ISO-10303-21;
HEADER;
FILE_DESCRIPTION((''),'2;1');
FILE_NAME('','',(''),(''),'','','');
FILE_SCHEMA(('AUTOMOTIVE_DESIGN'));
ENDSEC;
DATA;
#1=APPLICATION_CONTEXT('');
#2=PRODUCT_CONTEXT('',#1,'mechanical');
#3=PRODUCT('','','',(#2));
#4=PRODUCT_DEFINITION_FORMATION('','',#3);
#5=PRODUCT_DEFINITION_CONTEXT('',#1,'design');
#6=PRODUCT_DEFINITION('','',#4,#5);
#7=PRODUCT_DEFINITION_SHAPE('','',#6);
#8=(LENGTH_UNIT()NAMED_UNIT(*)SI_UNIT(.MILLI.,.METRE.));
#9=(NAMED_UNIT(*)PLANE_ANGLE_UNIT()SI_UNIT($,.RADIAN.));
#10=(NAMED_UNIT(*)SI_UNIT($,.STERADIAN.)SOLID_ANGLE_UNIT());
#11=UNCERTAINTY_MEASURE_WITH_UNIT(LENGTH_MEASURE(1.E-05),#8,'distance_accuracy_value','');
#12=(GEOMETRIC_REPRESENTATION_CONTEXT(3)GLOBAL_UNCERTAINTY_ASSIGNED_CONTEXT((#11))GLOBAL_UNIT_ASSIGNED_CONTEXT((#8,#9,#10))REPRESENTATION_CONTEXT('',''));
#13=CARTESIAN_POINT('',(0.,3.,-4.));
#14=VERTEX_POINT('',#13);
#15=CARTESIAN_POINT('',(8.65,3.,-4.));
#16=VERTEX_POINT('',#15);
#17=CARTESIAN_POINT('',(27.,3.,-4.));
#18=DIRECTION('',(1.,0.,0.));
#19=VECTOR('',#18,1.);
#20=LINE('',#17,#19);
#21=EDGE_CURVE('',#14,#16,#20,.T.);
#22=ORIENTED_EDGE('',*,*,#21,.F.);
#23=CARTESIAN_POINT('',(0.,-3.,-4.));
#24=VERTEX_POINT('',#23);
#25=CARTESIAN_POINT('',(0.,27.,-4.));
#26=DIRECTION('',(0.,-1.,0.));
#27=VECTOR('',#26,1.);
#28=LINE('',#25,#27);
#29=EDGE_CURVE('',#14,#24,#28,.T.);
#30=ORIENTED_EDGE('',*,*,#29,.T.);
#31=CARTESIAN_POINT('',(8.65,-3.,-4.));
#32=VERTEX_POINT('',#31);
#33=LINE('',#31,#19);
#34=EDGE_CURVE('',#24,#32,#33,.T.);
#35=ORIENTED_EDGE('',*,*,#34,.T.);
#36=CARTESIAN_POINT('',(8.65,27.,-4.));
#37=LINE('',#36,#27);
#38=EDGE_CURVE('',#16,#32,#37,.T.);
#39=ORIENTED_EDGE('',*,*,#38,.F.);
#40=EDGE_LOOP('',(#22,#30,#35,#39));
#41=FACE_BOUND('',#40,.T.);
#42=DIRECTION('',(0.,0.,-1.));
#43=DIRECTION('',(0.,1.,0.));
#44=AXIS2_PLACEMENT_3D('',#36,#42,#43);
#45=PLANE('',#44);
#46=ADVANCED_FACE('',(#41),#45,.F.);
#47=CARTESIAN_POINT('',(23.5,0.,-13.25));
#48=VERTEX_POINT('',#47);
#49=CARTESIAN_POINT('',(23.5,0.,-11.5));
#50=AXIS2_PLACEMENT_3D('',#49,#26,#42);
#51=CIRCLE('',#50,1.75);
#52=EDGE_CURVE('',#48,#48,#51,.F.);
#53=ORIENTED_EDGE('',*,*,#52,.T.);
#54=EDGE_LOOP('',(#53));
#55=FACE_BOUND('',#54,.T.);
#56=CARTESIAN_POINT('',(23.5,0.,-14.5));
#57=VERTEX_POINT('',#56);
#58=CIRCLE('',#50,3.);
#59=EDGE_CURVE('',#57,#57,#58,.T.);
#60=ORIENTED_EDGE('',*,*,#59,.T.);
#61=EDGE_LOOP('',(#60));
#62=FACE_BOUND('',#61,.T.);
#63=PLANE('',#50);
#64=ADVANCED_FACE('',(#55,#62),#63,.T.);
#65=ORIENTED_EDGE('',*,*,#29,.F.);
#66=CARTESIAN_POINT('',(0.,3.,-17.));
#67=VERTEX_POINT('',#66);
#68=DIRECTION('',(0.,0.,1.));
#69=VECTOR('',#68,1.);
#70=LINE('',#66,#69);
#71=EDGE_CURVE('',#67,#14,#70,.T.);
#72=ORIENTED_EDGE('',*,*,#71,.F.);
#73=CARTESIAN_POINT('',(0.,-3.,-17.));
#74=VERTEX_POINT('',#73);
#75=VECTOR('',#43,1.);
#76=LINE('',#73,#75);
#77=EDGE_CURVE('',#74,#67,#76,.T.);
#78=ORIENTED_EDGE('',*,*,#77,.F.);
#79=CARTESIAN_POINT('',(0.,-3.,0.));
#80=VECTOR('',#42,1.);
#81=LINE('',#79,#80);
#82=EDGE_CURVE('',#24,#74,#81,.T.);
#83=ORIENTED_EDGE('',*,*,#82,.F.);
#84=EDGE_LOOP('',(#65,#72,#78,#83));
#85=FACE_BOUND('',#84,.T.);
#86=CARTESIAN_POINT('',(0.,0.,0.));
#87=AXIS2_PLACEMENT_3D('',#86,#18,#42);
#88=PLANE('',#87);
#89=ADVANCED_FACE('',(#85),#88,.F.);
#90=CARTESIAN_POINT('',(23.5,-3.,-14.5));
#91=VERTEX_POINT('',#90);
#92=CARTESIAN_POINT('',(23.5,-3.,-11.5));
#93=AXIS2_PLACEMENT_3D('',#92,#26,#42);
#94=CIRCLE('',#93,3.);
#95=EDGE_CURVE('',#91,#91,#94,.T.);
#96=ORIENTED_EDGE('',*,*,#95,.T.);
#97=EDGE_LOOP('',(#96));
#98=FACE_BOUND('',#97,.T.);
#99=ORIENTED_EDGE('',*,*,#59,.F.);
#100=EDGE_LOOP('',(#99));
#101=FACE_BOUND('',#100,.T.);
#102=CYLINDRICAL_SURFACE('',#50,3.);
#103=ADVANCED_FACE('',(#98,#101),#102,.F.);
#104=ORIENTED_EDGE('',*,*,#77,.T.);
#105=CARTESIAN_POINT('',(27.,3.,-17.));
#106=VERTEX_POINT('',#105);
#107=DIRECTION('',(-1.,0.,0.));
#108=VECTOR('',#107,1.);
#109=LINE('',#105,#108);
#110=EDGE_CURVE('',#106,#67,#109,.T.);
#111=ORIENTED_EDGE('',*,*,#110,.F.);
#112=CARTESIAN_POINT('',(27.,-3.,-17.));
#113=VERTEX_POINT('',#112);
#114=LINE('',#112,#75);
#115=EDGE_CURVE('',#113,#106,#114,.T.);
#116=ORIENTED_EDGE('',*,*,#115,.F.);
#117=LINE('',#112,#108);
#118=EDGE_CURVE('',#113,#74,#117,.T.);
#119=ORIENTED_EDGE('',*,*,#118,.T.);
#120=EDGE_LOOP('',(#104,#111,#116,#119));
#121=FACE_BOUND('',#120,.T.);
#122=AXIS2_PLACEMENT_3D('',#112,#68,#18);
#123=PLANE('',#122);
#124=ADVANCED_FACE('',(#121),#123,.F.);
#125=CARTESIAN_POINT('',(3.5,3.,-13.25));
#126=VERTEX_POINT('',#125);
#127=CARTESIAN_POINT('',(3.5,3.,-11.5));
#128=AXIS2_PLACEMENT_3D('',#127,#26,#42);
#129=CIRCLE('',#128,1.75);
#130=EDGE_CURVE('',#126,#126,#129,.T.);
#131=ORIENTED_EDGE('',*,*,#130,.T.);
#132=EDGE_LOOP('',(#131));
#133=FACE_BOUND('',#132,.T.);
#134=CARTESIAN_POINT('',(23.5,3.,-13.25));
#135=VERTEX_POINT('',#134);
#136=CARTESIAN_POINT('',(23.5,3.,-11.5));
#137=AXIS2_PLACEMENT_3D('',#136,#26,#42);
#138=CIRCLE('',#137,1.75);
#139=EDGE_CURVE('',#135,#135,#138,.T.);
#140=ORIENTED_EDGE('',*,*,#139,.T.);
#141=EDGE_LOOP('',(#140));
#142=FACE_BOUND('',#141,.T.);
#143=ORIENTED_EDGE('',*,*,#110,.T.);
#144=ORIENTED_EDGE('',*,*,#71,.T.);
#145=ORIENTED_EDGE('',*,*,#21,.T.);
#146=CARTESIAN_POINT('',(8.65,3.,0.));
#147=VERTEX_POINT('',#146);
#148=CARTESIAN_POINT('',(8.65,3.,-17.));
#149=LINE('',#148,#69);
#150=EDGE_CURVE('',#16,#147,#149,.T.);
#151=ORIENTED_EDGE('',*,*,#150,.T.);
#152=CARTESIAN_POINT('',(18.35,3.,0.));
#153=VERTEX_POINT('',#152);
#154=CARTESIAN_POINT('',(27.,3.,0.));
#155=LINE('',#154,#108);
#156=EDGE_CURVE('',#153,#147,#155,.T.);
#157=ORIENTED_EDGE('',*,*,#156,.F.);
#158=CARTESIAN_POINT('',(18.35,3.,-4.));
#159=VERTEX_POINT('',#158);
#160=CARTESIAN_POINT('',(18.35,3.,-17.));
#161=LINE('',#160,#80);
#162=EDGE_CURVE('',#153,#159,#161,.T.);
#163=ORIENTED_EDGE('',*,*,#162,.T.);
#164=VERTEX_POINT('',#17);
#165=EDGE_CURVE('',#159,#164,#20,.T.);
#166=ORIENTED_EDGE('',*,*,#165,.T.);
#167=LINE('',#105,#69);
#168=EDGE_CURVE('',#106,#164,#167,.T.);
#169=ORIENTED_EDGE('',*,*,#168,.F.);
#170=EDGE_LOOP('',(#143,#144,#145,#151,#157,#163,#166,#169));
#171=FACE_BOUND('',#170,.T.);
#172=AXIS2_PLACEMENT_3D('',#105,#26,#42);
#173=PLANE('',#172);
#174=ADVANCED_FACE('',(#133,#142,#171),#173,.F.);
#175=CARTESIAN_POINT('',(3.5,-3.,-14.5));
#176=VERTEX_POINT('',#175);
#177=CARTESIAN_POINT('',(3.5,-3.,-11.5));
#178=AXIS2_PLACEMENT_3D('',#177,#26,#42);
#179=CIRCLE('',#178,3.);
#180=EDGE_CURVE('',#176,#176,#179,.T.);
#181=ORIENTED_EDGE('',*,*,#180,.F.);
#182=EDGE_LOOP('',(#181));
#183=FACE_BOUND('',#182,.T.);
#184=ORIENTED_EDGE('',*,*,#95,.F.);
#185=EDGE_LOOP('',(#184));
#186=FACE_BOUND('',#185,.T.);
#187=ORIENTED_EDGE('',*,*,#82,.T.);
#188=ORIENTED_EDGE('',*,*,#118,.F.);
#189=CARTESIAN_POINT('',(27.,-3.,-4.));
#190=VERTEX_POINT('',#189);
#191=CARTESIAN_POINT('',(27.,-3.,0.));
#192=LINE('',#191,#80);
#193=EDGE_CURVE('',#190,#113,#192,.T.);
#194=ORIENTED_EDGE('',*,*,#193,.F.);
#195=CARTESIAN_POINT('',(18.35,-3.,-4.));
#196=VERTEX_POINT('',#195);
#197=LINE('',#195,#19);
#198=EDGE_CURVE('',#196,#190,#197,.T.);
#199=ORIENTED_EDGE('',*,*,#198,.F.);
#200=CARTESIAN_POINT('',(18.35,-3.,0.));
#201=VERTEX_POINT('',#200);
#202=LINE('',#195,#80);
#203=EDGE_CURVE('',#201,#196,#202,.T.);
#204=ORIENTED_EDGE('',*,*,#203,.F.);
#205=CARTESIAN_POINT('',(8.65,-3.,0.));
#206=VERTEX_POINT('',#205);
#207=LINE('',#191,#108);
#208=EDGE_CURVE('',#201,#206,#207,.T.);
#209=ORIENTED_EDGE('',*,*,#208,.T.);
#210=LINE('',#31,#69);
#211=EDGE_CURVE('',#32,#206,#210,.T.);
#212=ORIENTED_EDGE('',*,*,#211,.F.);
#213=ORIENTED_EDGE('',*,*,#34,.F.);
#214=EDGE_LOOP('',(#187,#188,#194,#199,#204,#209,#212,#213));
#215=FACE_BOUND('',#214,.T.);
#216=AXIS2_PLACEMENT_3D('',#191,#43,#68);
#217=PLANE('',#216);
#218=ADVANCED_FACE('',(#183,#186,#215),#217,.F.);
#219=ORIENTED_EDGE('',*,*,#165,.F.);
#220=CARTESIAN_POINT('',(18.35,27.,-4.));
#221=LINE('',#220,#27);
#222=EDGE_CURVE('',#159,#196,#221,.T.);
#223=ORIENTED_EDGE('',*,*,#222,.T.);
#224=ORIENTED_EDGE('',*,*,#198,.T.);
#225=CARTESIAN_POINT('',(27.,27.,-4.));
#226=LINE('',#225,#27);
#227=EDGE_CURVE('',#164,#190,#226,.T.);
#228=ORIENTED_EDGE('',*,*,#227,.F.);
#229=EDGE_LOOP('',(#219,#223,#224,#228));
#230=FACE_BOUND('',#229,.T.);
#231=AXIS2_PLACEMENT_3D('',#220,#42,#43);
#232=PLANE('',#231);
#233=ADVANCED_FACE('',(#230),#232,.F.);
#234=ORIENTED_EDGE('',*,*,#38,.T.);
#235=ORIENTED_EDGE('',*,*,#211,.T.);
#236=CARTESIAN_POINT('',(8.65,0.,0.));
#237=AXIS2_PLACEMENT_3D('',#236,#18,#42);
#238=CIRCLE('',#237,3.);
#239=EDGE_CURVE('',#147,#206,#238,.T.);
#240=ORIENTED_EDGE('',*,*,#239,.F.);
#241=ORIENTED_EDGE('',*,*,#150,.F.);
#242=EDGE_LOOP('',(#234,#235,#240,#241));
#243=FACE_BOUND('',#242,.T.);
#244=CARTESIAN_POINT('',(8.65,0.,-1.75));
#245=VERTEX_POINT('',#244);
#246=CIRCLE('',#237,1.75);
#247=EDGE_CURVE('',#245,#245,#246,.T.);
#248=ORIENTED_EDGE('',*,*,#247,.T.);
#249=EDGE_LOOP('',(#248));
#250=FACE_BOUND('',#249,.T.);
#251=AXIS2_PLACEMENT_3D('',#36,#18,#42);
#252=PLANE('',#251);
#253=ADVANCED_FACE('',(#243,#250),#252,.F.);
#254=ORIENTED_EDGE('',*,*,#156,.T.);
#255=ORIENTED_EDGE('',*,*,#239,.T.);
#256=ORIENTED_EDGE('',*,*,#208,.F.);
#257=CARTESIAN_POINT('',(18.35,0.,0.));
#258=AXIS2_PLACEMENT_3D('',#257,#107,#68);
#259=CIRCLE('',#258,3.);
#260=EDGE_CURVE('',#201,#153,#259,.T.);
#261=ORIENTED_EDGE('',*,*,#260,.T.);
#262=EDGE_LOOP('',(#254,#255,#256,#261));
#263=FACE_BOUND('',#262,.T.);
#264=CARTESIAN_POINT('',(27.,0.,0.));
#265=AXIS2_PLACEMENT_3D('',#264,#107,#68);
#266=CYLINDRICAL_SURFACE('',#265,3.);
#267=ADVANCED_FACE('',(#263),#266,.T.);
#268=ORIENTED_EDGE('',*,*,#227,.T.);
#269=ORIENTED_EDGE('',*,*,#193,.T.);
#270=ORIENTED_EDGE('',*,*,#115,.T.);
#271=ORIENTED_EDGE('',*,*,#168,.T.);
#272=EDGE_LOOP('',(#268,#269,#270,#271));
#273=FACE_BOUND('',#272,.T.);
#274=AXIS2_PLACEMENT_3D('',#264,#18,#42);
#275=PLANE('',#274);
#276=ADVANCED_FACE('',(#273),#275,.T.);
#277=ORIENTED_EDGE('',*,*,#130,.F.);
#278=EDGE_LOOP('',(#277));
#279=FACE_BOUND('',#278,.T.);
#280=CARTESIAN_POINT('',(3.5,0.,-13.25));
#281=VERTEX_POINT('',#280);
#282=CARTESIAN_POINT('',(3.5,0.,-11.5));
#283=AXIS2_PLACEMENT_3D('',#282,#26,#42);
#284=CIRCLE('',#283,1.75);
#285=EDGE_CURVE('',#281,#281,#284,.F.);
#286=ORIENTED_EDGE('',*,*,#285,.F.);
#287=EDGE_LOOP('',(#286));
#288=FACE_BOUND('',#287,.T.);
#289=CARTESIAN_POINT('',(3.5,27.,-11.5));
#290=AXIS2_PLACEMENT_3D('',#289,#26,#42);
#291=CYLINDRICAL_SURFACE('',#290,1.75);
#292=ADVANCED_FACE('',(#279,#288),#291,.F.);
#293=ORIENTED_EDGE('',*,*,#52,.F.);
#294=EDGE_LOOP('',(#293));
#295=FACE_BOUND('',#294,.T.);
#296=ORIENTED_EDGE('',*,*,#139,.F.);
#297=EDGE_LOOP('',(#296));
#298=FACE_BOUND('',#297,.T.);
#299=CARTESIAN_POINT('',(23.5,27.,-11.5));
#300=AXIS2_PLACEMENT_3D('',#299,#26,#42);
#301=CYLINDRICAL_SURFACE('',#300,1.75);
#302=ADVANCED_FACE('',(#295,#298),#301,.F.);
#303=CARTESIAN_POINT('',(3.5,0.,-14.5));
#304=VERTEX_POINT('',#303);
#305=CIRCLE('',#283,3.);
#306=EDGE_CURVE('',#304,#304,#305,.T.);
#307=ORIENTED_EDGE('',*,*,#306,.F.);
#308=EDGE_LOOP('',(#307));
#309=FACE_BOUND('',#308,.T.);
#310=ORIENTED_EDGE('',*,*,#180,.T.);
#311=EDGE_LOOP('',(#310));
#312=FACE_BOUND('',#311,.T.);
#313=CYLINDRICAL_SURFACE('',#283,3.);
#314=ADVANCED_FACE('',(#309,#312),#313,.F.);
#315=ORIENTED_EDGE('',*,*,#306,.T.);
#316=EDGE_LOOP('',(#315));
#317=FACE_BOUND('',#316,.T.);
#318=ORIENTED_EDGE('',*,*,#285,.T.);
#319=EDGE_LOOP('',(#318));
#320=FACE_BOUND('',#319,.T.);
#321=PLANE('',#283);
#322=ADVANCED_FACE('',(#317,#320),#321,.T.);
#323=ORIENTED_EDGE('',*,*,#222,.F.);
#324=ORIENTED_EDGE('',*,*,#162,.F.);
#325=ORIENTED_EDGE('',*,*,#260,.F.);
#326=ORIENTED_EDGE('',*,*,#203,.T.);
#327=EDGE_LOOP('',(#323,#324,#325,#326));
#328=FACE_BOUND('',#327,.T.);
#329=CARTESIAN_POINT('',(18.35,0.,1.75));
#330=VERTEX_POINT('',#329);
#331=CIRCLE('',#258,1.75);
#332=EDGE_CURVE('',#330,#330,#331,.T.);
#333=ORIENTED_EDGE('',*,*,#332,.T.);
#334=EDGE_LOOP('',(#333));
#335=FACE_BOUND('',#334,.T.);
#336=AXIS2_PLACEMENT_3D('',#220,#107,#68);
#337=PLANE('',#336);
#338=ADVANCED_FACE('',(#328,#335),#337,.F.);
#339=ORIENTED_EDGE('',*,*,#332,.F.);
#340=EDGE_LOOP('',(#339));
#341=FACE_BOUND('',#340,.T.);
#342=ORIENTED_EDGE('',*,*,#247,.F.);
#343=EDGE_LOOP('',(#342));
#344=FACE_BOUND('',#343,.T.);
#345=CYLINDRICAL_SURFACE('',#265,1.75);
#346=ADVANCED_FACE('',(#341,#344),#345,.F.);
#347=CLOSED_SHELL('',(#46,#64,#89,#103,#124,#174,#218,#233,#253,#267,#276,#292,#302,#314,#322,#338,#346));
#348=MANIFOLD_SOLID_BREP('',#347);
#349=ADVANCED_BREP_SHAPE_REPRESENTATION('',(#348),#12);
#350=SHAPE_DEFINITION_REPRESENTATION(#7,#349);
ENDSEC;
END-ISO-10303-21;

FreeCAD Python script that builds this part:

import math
import FreeCAD as App
import Part
import Sketcher

V = App.Vector
Q = App.Units.Quantity

doc = App.newDocument("Part")
body = doc.addObject("PartDesign::Body", "Body")

sketch1 = doc.addObject("Sketcher::SketchObject", "Sketch")
body.addObject(sketch1)
sketch1.AttachmentSupport = (doc.YZ_Plane, [""])
sketch1.MapMode = "FlatFace"
sketch1.addGeometry([
    Part.LineSegment(V(-3, 0, 0), V(-3, -17, 0)),
    Part.LineSegment(V(-3, -17, 0), V(3, -17, 0)),
    Part.LineSegment(V(3, -17, 0), V(3, 0, 0)),
    Part.ArcOfCircle(Part.Circle(V(0, 0, 0), V(0, 0, 1), 3), math.radians(0), math.radians(180)),
    Part.Circle(V(0, 0, 0), V(0, 0, 1), 1.8),
], False)
sketch1.addConstraint([
    Sketcher.Constraint("Coincident", 0, 2, 1, 1),
    Sketcher.Constraint("Coincident", 1, 2, 2, 1),
    Sketcher.Constraint("Tangent", 2, 2, 3, 1),
    Sketcher.Constraint("Tangent", 3, 2, 0, 1),
    Sketcher.Constraint("Vertical", 0),
    Sketcher.Constraint("Horizontal", 1),
    Sketcher.Constraint("Vertical", 2),
    Sketcher.Constraint("Coincident", 3, 3, -1, 1),
    Sketcher.Constraint("Coincident", 4, 3, -1, 1),
    Sketcher.Constraint("Radius", 3, Q("3 mm")),
    Sketcher.Constraint("Diameter", 4, Q("3.5 mm")),
    Sketcher.Constraint("DistanceY", 0, 2, 0, 1, Q("17 mm")),
])
pad1 = doc.addObject("PartDesign::Pad", "Pad")
body.addObject(pad1)
pad1.Profile = sketch1
pad1.Length = 27

sketch2 = doc.addObject("Sketcher::SketchObject", "Sketch001")
body.addObject(sketch2)
sketch2.AttachmentSupport = (doc.XZ_Plane, [""])
sketch2.MapMode = "FlatFace"
sketch2.AttachmentOffset = App.Placement(V(0, 0, 3), App.Rotation())
sketch2.addGeometry([
    Part.Circle(V(3.5, -11.5, 0), V(0, 0, 1), 1.8),
    Part.Circle(V(23.5, -11.5, 0), V(0, 0, 1), 1.8),
    Part.LineSegment(V(18.4, 3, 0), V(18.4, -4, 0)),
    Part.LineSegment(V(18.4, -4, 0), V(27, -4, 0)),
    Part.LineSegment(V(27, -4, 0), V(27, 3, 0)),
    Part.LineSegment(V(27, 3, 0), V(18.4, 3, 0)),
    Part.LineSegment(V(0, 3, 0), V(0, -4, 0)),
    Part.LineSegment(V(0, -4, 0), V(8.7, -4, 0)),
    Part.LineSegment(V(8.7, -4, 0), V(8.7, 3, 0)),
    Part.LineSegment(V(8.7, 3, 0), V(0, 3, 0)),
], False)
sketch2.addConstraint([
    Sketcher.Constraint("Coincident", 2, 2, 3, 1),
    Sketcher.Constraint("Coincident", 3, 2, 4, 1),
    Sketcher.Constraint("Coincident", 4, 2, 5, 1),
    Sketcher.Constraint("Coincident", 5, 2, 2, 1),
    Sketcher.Constraint("Coincident", 6, 2, 7, 1),
    Sketcher.Constraint("Coincident", 7, 2, 8, 1),
    Sketcher.Constraint("Coincident", 8, 2, 9, 1),
    Sketcher.Constraint("Coincident", 9, 2, 6, 1),
    Sketcher.Constraint("Vertical", 2),
    Sketcher.Constraint("Horizontal", 3),
    Sketcher.Constraint("Vertical", 4),
    Sketcher.Constraint("Horizontal", 5),
    Sketcher.Constraint("Vertical", 6),
    Sketcher.Constraint("Horizontal", 7),
    Sketcher.Constraint("Vertical", 8),
    Sketcher.Constraint("Horizontal", 9),
    Sketcher.Constraint("Equal", 0, 1),
    Sketcher.Constraint("PointOnObject", 6, 2, -2),
    Sketcher.Constraint("Horizontal", 0, 3, 1, 3),
    Sketcher.Constraint("Horizontal", 3, 2, 6, 2),
    Sketcher.Constraint("Horizontal", 5, 2, 8, 2),
    Sketcher.Constraint("Equal", 5, 7),
    Sketcher.Constraint("Diameter", 0, Q("3.5 mm")),
    Sketcher.Constraint("DistanceY", 2, 2, 2, 1, Q("7 mm")),
    Sketcher.Constraint("DistanceY", 2, 2, -1, 1, Q("4 mm")),
    Sketcher.Constraint("DistanceX", -1, 1, 3, 2, Q("27 mm")),
    Sketcher.Constraint("DistanceX", 0, 3, 1, 3, Q("20 mm")),
    Sketcher.Constraint("DistanceX", 3, 1, 3, 2, Q("8.65 mm")),
    Sketcher.Constraint("DistanceX", -1, 1, 0, 3, Q("3.5 mm")),
    Sketcher.Constraint("DistanceY", 0, 3, -1, 1, Q("11.5 mm")),
])
pocket1 = doc.addObject("PartDesign::Pocket", "Pocket")
body.addObject(pocket1)
pocket1.Profile = sketch2
pocket1.Length = 30

sketch3 = doc.addObject("Sketcher::SketchObject", "Sketch002")
body.addObject(sketch3)
sketch3.AttachmentSupport = (doc.XZ_Plane, [""])
sketch3.MapMode = "FlatFace"
sketch3.AttachmentOffset = App.Placement(V(0, 0, 3), App.Rotation())
sketch3.addGeometry([
    Part.Circle(V(3.5, -11.5, 0), V(0, 0, 1), 3),
    Part.Circle(V(23.5, -11.5, 0), V(0, 0, 1), 3),
], False)
sketch3.addConstraint([
    Sketcher.Constraint("Equal", 0, 1),
    Sketcher.Constraint("Horizontal", 0, 3, 1, 3),
    Sketcher.Constraint("Diameter", 0, Q("6 mm")),
    Sketcher.Constraint("DistanceX", 0, 3, 1, 3, Q("20 mm")),
    Sketcher.Constraint("DistanceX", -1, 1, 0, 3, Q("3.5 mm")),
    Sketcher.Constraint("DistanceY", 0, 3, -1, 1, Q("11.5 mm")),
])
pocket2 = doc.addObject("PartDesign::Pocket", "Pocket001")
body.addObject(pocket2)
pocket2.Profile = sketch3
pocket2.Length = 3

doc.recompute()
